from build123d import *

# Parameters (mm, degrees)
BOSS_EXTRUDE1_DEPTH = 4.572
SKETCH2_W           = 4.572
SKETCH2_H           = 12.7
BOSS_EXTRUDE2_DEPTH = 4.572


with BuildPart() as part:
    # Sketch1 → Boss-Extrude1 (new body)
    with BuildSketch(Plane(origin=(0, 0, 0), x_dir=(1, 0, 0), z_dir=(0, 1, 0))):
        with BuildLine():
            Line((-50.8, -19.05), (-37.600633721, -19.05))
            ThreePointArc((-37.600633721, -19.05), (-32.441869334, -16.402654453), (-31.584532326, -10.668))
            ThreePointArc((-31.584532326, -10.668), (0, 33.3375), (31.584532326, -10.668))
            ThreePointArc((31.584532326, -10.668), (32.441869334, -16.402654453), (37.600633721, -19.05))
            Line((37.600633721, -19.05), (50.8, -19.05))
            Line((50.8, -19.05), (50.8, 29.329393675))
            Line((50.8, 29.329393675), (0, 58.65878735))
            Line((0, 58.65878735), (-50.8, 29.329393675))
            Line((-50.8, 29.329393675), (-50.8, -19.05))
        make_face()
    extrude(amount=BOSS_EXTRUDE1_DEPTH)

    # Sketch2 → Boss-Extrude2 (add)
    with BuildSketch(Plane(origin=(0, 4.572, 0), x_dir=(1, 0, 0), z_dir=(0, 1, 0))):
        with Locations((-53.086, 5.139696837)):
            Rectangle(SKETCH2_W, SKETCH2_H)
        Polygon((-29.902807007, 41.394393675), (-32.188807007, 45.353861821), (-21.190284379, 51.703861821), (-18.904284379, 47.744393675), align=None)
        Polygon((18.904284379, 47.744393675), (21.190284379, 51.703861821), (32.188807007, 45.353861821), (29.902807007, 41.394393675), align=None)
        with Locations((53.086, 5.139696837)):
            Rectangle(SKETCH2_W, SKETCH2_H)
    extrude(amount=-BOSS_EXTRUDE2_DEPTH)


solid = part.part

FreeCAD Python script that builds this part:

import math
import FreeCAD as App
import Part
import Sketcher
Q = App.Units.Quantity


def add_polygon(sketch, points):
    """Adds a closed chain of lines whose ends are joined by coincident constraints."""
    first, n = sketch.GeometryCount, len(points)
    for a, b in zip(points, points[1:] + points[:1]):
        sketch.addGeometry(Part.LineSegment(App.Vector(*a, 0), App.Vector(*b, 0)), False)
    for i in range(n):
        sketch.addConstraint(Sketcher.Constraint("Coincident", first + i, 2, first + (i + 1) % n, 1))

doc = App.newDocument("Part")
body = doc.addObject("PartDesign::Body", "Body")

sketch1 = doc.addObject("Sketcher::SketchObject", "Sketch")
body.addObject(sketch1)
sketch1.AttachmentSupport = (doc.XZ_Plane, [""])
sketch1.MapMode = "FlatFace"
sketch1.addGeometry([
    Part.LineSegment(App.Vector(-51, 19, 0), App.Vector(-38, 19, 0)),
    Part.ArcOfCircle(Part.Circle(App.Vector(-38, 13, 0), App.Vector(0, 0, 1), 6), math.radians(-19), math.radians(90)),
    Part.ArcOfCircle(Part.Circle(App.Vector(0, 0, 0), App.Vector(0, 0, 1), 33), math.radians(161), math.radians(379)),
    Part.ArcOfCircle(Part.Circle(App.Vector(38, 13, 0), App.Vector(0, 0, 1), 6), math.radians(90), math.radians(199)),
    Part.LineSegment(App.Vector(38, 19, 0), App.Vector(51, 19, 0)),
    Part.LineSegment(App.Vector(51, 19, 0), App.Vector(51, -29, 0)),
    Part.LineSegment(App.Vector(51, -29, 0), App.Vector(0, -59, 0)),
    Part.LineSegment(App.Vector(0, -59, 0), App.Vector(-51, -29, 0)),
    Part.LineSegment(App.Vector(-51, -29, 0), App.Vector(-51, 19, 0)),
], False)
sketch1.addConstraint([
    Sketcher.Constraint("Tangent", 0, 2, 1, 2),
    Sketcher.Constraint("Tangent", 1, 1, 2, 1),
    Sketcher.Constraint("Tangent", 2, 2, 3, 2),
    Sketcher.Constraint("Tangent", 3, 1, 4, 1),
    Sketcher.Constraint("Coincident", 4, 2, 5, 1),
    Sketcher.Constraint("Coincident", 5, 2, 6, 1),
    Sketcher.Constraint("Coincident", 6, 2, 7, 1),
    Sketcher.Constraint("Coincident", 7, 2, 8, 1),
    Sketcher.Constraint("Coincident", 8, 2, 0, 1),
    Sketcher.Constraint("Horizontal", 0),
    Sketcher.Constraint("Horizontal", 4),
    Sketcher.Constraint("Vertical", 5),
    Sketcher.Constraint("Vertical", 8),
    Sketcher.Constraint("Coincident", 2, 3, -1, 1),
    Sketcher.Constraint("Equal", 1, 3),
    Sketcher.Constraint("Symmetric", 5, 2, 7, 2, -2),
    Sketcher.Constraint("PointOnObject", 6, 2, -2),
    Sketcher.Constraint("Horizontal", 1, 3, 3, 3),
    Sketcher.Constraint("Radius", 1, Q("0.25 in")),
    Sketcher.Constraint("DistanceX", -1, 1, 4, 2, Q("2 in")),
    Sketcher.Constraint("Angle", 6, Q("-150 deg")),
    Sketcher.Constraint("Radius", 2, Q("1.3125 in")),
    Sketcher.Constraint("DistanceY", -1, 1, 1, 3, Q("0.5 in")),
    Sketcher.Constraint("DistanceY", 5, 2, 5, 1, Q("48.379394 mm")),
])
pad1 = doc.addObject("PartDesign::Pad", "Pad")
body.addObject(pad1)
pad1.Profile = sketch1
pad1.Length = Q("0.18 in")
pad1.Reversed = True

sketch2 = doc.addObject("Sketcher::SketchObject", "Sketch001")
body.addObject(sketch2)
sketch2.AttachmentSupport = (doc.XZ_Plane, [""])
sketch2.MapMode = "FlatFace"
sketch2.AttachmentOffset = App.Placement(App.Vector(0, 0, -0.18 * 25.4), App.Rotation())
add_polygon(sketch2, [(-55.4, -11.5), (-55.4, 1.2), (-50.8, 1.2), (-50.8, -11.5)])
add_polygon(sketch2, [(-32.2, -45.4), (-29.9, -41.4), (-18.9, -47.7), (-21.2, -51.7)])
add_polygon(sketch2, [(21.2, -51.7), (18.9, -47.7), (29.9, -41.4), (32.2, -45.4)])
add_polygon(sketch2, [(50.8, -11.5), (50.8, 1.2), (55.4, 1.2), (55.4, -11.5)])
sketch2.addConstraint([
    Sketcher.Constraint("Vertical", 0),
    Sketcher.Constraint("Horizontal", 1),
    Sketcher.Constraint("Vertical", 2),
    Sketcher.Constraint("Horizontal", 3),
    Sketcher.Constraint("Vertical", 12),
    Sketcher.Constraint("Horizontal", 13),
    Sketcher.Constraint("Vertical", 14),
    Sketcher.Constraint("Horizontal", 15),
    Sketcher.Constraint("Symmetric", 5, 2, 8, 2, -2),
    Sketcher.Constraint("Symmetric", 4, 2, 9, 2, -2),
    Sketcher.Constraint("Symmetric", 7, 2, 10, 2, -2),
    Sketcher.Constraint("Symmetric", 6, 2, 11, 2, -2),
    Sketcher.Constraint("Symmetric", 1, 2, 12, 2, -2),
    Sketcher.Constraint("Symmetric", 3, 2, 14, 2, -2),
    Sketcher.Constraint("Perpendicular", 4, 5),
    Sketcher.Constraint("Perpendicular", 5, 6),
    Sketcher.Constraint("Perpendicular", 6, 7),
    Sketcher.Constraint("DistanceY", 0, 1, 0, 2, Q("0.5 in")),
    Sketcher.Constraint("DistanceX", 1, 2, -1, 1, Q("2 in")),
    Sketcher.Constraint("Angle", 4, Q("60 deg")),
    Sketcher.Constraint("Distance", 5, Q("0.5 in")),
    Sketcher.Constraint("DistanceX", 1, 1, 1, 2, Q("0.18 in")),
    Sketcher.Constraint("Distance", 4, Q("0.18 in")),
    Sketcher.Constraint("DistanceY", 6, 2, -1, 1, Q("51.703862 mm")),
    Sketcher.Constraint("DistanceX", 5, 2, 8, 2, Q("37.808569 mm")),
    Sketcher.Constraint("DistanceY", -1, 1, 0, 2, Q("1.210303 mm")),
])
pad2 = doc.addObject("PartDesign::Pad", "Pad001")
body.addObject(pad2)
pad2.Profile = sketch2
pad2.Length = Q("0.18 in")

doc.recompute()
